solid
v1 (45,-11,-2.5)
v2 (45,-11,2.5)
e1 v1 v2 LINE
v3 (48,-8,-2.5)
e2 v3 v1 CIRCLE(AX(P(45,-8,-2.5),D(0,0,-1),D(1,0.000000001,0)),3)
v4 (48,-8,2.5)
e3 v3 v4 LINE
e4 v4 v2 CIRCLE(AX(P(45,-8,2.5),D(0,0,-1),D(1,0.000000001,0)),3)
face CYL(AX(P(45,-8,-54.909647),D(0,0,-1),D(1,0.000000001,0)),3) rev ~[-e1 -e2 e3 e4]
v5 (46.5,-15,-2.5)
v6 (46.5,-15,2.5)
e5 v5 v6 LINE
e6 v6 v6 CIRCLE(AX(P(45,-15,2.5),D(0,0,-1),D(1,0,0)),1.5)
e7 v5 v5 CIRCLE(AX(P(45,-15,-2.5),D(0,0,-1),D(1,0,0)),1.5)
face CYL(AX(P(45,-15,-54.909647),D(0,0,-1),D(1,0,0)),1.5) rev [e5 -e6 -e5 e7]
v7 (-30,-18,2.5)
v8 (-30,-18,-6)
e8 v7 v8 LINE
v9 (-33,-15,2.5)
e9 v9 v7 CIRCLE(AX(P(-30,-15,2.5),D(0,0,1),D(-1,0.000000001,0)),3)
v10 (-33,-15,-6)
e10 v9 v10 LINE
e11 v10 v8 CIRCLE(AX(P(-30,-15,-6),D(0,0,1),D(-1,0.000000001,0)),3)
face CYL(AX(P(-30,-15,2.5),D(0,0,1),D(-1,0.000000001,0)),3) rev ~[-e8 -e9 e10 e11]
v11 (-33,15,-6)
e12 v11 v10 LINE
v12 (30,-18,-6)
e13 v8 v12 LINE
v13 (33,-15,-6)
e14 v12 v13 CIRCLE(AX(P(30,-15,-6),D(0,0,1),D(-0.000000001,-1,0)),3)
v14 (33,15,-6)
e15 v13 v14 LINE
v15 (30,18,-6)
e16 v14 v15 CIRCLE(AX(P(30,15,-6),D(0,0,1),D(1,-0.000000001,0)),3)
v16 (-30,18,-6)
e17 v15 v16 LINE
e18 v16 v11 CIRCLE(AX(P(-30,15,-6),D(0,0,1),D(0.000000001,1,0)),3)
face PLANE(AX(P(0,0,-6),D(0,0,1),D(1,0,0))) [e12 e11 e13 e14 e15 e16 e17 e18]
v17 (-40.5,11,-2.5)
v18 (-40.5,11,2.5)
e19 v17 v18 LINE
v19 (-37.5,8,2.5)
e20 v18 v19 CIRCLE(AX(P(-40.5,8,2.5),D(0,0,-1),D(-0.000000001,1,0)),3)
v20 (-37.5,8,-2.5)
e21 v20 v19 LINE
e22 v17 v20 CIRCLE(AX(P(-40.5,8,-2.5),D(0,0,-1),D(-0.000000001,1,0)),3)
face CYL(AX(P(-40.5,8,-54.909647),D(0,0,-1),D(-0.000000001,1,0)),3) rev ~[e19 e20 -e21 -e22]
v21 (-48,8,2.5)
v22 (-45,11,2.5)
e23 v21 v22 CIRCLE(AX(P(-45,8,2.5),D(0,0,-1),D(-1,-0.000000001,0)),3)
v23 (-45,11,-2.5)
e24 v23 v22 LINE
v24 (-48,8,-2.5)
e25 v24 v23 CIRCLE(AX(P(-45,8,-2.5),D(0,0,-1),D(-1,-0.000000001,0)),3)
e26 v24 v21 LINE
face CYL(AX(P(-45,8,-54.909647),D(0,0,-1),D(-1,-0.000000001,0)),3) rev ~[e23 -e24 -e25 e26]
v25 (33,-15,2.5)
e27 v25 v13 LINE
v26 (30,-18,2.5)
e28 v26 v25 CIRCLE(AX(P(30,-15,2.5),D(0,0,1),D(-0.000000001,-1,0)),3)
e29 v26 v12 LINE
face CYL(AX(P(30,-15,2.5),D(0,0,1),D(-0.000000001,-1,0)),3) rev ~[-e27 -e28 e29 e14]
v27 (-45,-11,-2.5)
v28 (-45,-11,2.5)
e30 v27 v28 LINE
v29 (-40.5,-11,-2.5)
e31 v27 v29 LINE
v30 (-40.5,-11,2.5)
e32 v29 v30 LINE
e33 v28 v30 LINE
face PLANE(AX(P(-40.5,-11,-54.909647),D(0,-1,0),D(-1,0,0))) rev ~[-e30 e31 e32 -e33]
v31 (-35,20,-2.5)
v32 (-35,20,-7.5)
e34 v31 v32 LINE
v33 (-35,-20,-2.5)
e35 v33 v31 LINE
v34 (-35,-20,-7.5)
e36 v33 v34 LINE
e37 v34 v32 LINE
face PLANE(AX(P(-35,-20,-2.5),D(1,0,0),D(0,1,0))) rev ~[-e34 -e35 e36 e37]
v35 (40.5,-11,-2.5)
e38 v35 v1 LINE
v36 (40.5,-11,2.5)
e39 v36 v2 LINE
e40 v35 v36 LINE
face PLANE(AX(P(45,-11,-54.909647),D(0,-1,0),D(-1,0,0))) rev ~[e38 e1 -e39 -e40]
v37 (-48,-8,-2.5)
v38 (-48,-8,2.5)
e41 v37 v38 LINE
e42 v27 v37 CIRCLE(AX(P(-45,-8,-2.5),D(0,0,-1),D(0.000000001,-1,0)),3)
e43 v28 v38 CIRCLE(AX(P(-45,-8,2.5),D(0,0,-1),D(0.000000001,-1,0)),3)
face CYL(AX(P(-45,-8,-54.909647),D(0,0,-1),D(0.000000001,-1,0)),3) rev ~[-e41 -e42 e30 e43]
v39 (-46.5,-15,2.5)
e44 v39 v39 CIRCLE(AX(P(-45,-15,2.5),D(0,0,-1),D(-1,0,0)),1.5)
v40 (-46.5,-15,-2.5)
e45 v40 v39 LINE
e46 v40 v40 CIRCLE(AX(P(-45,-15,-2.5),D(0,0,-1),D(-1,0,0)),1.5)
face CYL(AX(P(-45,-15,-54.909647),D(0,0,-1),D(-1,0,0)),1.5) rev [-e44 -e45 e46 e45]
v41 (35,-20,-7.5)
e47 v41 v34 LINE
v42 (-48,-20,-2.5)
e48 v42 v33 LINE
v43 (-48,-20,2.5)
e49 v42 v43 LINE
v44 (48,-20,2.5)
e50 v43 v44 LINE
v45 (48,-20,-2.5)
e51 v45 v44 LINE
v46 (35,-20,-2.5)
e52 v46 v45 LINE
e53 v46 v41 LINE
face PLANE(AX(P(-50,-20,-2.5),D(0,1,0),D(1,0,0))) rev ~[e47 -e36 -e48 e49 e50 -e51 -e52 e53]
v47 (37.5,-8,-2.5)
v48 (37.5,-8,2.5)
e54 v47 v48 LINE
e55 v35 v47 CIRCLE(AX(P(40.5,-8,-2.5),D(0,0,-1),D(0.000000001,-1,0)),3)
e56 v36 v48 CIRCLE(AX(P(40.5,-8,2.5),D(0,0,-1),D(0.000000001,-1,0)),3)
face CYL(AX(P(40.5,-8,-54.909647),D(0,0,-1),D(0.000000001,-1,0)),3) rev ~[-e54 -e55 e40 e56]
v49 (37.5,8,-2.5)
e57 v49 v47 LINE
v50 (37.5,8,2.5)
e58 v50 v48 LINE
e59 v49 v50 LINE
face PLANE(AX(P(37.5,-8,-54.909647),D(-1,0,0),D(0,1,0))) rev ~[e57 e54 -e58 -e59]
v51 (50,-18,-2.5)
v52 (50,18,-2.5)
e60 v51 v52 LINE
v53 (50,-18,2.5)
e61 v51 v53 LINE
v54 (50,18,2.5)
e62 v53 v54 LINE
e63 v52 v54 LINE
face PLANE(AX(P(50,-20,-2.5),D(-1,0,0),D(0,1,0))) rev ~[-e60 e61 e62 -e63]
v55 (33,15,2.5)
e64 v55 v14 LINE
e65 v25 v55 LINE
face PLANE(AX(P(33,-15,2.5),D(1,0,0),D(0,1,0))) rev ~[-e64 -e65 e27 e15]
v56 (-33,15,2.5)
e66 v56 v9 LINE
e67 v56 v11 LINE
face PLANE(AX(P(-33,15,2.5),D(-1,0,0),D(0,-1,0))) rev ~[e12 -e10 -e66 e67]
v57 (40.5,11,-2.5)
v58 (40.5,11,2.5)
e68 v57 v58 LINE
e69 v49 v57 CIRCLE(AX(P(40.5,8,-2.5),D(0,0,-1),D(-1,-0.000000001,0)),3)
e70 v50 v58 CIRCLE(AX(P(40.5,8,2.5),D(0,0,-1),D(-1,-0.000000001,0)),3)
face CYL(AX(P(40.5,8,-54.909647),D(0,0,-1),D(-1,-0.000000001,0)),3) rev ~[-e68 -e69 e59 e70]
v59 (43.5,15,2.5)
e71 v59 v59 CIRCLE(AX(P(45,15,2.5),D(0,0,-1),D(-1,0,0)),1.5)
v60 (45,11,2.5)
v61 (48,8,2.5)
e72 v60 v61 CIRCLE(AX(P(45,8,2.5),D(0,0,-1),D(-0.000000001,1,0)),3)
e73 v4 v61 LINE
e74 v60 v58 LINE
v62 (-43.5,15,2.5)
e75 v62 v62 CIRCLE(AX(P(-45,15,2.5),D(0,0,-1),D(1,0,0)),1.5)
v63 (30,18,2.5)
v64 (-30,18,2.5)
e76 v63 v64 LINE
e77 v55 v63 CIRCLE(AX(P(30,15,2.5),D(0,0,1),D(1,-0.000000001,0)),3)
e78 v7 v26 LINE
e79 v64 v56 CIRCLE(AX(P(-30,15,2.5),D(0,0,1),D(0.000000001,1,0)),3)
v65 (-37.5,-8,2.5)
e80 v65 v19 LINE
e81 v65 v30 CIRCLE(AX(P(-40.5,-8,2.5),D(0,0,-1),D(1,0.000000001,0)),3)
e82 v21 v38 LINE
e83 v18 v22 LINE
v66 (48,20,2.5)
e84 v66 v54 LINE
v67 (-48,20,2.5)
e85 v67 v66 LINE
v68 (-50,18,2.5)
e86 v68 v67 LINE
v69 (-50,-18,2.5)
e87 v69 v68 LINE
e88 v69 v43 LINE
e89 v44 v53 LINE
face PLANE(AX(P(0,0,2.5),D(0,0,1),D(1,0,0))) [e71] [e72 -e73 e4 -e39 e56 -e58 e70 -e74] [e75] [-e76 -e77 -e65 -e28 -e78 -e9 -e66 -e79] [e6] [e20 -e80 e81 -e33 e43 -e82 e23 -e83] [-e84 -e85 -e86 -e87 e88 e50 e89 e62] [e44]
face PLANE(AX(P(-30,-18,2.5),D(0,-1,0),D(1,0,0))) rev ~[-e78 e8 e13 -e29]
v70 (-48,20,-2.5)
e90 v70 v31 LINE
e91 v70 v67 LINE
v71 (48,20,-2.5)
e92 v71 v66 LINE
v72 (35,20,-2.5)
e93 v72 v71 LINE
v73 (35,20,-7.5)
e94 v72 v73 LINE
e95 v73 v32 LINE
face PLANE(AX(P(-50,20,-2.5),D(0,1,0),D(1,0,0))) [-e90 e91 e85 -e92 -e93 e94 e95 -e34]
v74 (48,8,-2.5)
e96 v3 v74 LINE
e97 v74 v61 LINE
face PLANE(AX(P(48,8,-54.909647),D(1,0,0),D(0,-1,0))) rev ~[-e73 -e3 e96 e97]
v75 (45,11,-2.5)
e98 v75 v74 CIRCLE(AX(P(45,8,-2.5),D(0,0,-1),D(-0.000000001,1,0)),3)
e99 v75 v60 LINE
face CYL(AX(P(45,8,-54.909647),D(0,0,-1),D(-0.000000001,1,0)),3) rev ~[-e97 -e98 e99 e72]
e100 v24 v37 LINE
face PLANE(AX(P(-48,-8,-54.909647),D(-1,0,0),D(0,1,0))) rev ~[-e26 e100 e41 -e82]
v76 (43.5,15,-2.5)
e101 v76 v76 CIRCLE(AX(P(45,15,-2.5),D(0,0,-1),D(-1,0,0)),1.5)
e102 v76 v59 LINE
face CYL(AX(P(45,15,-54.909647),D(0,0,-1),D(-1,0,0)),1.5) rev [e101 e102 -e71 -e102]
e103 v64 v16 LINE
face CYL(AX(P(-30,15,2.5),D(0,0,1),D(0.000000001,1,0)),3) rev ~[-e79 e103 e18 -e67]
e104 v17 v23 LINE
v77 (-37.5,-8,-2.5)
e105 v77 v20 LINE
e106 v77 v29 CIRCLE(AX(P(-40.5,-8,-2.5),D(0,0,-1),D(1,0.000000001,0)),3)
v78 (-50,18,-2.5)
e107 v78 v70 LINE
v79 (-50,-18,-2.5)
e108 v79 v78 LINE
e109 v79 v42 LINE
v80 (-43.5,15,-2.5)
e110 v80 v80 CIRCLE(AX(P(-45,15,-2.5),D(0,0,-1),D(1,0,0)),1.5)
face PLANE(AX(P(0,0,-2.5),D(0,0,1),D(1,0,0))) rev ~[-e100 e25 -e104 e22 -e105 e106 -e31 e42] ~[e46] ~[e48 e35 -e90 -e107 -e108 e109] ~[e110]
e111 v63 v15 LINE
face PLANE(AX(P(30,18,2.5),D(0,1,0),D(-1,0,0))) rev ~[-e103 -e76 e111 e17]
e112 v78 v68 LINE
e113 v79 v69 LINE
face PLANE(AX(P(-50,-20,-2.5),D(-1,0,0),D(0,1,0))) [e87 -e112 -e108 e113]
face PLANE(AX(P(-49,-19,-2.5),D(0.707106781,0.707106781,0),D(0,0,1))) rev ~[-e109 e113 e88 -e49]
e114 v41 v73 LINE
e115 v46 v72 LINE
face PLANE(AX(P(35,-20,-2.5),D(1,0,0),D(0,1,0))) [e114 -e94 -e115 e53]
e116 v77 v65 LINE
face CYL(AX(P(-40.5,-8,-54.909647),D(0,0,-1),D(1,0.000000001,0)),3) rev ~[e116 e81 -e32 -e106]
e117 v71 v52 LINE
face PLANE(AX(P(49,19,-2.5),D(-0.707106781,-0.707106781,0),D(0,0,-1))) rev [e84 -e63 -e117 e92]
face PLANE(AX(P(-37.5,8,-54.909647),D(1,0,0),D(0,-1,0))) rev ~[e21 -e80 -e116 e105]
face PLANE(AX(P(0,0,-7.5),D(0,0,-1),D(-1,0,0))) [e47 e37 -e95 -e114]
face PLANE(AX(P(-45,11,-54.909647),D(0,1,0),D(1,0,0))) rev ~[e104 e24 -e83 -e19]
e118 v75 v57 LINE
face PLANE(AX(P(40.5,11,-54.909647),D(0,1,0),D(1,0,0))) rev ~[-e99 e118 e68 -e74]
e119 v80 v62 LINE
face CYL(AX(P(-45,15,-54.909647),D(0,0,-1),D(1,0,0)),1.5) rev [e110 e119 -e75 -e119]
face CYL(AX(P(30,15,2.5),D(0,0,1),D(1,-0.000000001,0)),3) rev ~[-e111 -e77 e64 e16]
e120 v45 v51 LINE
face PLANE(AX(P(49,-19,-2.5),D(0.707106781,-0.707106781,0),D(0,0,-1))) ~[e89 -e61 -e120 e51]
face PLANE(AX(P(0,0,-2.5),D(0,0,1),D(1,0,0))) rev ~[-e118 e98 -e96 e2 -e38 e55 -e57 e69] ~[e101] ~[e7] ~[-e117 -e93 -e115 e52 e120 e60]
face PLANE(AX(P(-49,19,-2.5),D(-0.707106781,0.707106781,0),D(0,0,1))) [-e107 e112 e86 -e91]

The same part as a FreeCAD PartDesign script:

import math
import FreeCAD as App
import Part
import Sketcher

V = App.Vector
Q = App.Units.Quantity


def edges_at(feature, points):
    """Names of the edges that pass closest to the given points."""
    edges = feature.Shape.Edges
    near = lambda p: min(range(len(edges)), key=lambda i: edges[i].distToShape(Part.Vertex(*p))[0])
    return sorted({f"Edge{near(p) + 1}" for p in points})

doc = App.newDocument("Part")
body = doc.addObject("PartDesign::Body", "Body")

# Sketch on XY plane
sketch1 = body.newObject("Sketcher::SketchObject", "Sketch")
sketch1.AttachmentSupport = (doc.getObject("XY_Plane"), [""])
sketch1.MapMode = "FlatFace"
sketch1.addGeometry([
    Part.LineSegment(V(-50, 20, 0), V(-50, -20, 0)),
    Part.LineSegment(V(-50, -20, 0), V(50, -20, 0)),
    Part.LineSegment(V(50, -20, 0), V(50, 20, 0)),
    Part.LineSegment(V(50, 20, 0), V(-50, 20, 0)),
], False)
sketch1.addConstraint([
    Sketcher.Constraint("Coincident", 0, 2, 1, 1),
    Sketcher.Constraint("Coincident", 1, 2, 2, 1),
    Sketcher.Constraint("Coincident", 2, 2, 3, 1),
    Sketcher.Constraint("Coincident", 3, 2, 0, 1),
    Sketcher.Constraint("Vertical", 0),
    Sketcher.Constraint("Horizontal", 1),
    Sketcher.Constraint("Vertical", 2),
    Sketcher.Constraint("Horizontal", 3),
    Sketcher.Constraint("Symmetric", 0, 2, 2, 2, -1, 1),
    Sketcher.Constraint("DistanceX", 1, 1, 1, 2, Q("100 mm")),
    Sketcher.Constraint("DistanceY", 0, 2, 0, 1, Q("40 mm")),
])
pad1 = body.newObject("PartDesign::Pad", "Pad")
pad1.Profile = sketch1
pad1.Type = "TwoLengths"
pad1.Length = 2.5
pad1.Length2 = 2.5

# Sketch on XY plane
sketch2 = body.newObject("Sketcher::SketchObject", "Sketch001")
sketch2.AttachmentSupport = (doc.getObject("XY_Plane"), [""])
sketch2.MapMode = "FlatFace"
sketch2.addGeometry([
    Part.Circle(V(-45, 15, 0), V(0, 0, 1), 1.5),
    Part.Circle(V(-45, -15, 0), V(0, 0, 1), 1.5),
    Part.Circle(V(45, -15, 0), V(0, 0, 1), 1.5),
    Part.Circle(V(45, 15, 0), V(0, 0, 1), 1.5),
], False)
sketch2.addConstraint([
    Sketcher.Constraint("Equal", 0, 1),
    Sketcher.Constraint("Equal", 1, 2),
    Sketcher.Constraint("Equal", 2, 3),
    Sketcher.Constraint("Symmetric", 0, 3, 2, 3, -1, 1),
    Sketcher.Constraint("Symmetric", 1, 3, 3, 3, -1, 1),
    Sketcher.Constraint("Symmetric", 1, 3, 2, 3, -2),
    Sketcher.Constraint("Diameter", 0, Q("3 mm")),
    Sketcher.Constraint("DistanceX", 0, 3, -1, 1, Q("45 mm")),
    Sketcher.Constraint("DistanceY", -1, 1, 0, 3, Q("15 mm")),
])
pocket1 = body.newObject("PartDesign::Pocket", "Pocket")
pocket1.Profile = sketch2
pocket1.Type = "ThroughAll"
pocket1.Midplane = True

# Sketch on XY plane
sketch3 = body.newObject("Sketcher::SketchObject", "Sketch002")
sketch3.AttachmentSupport = (doc.getObject("XY_Plane"), [""])
sketch3.MapMode = "FlatFace"
sketch3.addGeometry([
    Part.LineSegment(V(-48, 8, 0), V(-48, -8, 0)),  # 0
    Part.ArcOfCircle(Part.Circle(V(-45, -8, 0), V(0, 0, 1), 3), math.radians(180), math.radians(270)),  # 1
    Part.LineSegment(V(-45, -11, 0), V(-40.5, -11, 0)),  # 2
    Part.ArcOfCircle(Part.Circle(V(-40.5, -8, 0), V(0, 0, 1), 3), math.radians(-90), math.radians(0)),  # 3
    Part.LineSegment(V(-37.5, -8, 0), V(-37.5, 8, 0)),  # 4
    Part.ArcOfCircle(Part.Circle(V(-40.5, 8, 0), V(0, 0, 1), 3), math.radians(0), math.radians(90)),  # 5
    Part.LineSegment(V(-40.5, 11, 0), V(-45, 11, 0)),  # 6
    Part.ArcOfCircle(Part.Circle(V(-45, 8, 0), V(0, 0, 1), 3), math.radians(90), math.radians(180)),  # 7
    Part.LineSegment(V(40.5, -11, 0), V(45, -11, 0)),  # 8
    Part.ArcOfCircle(Part.Circle(V(45, -8, 0), V(0, 0, 1), 3), math.radians(-90), math.radians(0)),  # 9
    Part.LineSegment(V(48, -8, 0), V(48, 8, 0)),  # 10
    Part.ArcOfCircle(Part.Circle(V(45, 8, 0), V(0, 0, 1), 3), math.radians(0), math.radians(90)),  # 11
    Part.LineSegment(V(45, 11, 0), V(40.5, 11, 0)),  # 12
    Part.ArcOfCircle(Part.Circle(V(40.5, 8, 0), V(0, 0, 1), 3), math.radians(90), math.radians(180)),  # 13
    Part.LineSegment(V(37.5, 8, 0), V(37.5, -8, 0)),  # 14
    Part.ArcOfCircle(Part.Circle(V(40.5, -8, 0), V(0, 0, 1), 3), math.radians(180), math.radians(270)),  # 15
], False)
sketch3.addConstraint([
    Sketcher.Constraint("Tangent", 0, 2, 1, 1),
    Sketcher.Constraint("Tangent", 1, 2, 2, 1),
    Sketcher.Constraint("Tangent", 2, 2, 3, 1),
    Sketcher.Constraint("Tangent", 3, 2, 4, 1),
    Sketcher.Constraint("Tangent", 4, 2, 5, 1),
    Sketcher.Constraint("Tangent", 5, 2, 6, 1),
    Sketcher.Constraint("Tangent", 6, 2, 7, 1),
    Sketcher.Constraint("Tangent", 7, 2, 0, 1),
    Sketcher.Constraint("Tangent", 8, 2, 9, 1),
    Sketcher.Constraint("Tangent", 9, 2, 10, 1),
    Sketcher.Constraint("Tangent", 10, 2, 11, 1),
    Sketcher.Constraint("Tangent", 11, 2, 12, 1),
    Sketcher.Constraint("Tangent", 12, 2, 13, 1),
    Sketcher.Constraint("Tangent", 13, 2, 14, 1),
    Sketcher.Constraint("Tangent", 14, 2, 15, 1),
    Sketcher.Constraint("Tangent", 15, 2, 8, 1),
    Sketcher.Constraint("Vertical", 0),
    Sketcher.Constraint("Horizontal", 2),
    Sketcher.Constraint("Vertical", 4),
    Sketcher.Constraint("Horizontal", 6),
    Sketcher.Constraint("Horizontal", 8),
    Sketcher.Constraint("Vertical", 10),
    Sketcher.Constraint("Horizontal", 12),
    Sketcher.Constraint("Vertical", 14),
    Sketcher.Constraint("Equal", 1, 3),
    Sketcher.Constraint("Equal", 3, 5),
    Sketcher.Constraint("Equal", 5, 7),
    Sketcher.Constraint("Equal", 7, 9),
    Sketcher.Constraint("Equal", 9, 11),
    Sketcher.Constraint("Equal", 11, 13),
    Sketcher.Constraint("Equal", 13, 15),
    Sketcher.Constraint("Symmetric", 7, 3, 9, 3, -1, 1),
    Sketcher.Constraint("Symmetric", 3, 3, 13, 3, -1, 1),
    Sketcher.Constraint("Horizontal", 3, 3, 9, 3),
    Sketcher.Constraint("Radius", 1, Q("3 mm")),
    Sketcher.Constraint("DistanceY", 0, 2, 0, 1, Q("16 mm")),
    Sketcher.Constraint("DistanceX", 2, 1, 2, 2, Q("4.5 mm")),
    Sketcher.Constraint("DistanceX", 1, 3, -1, 1, Q("45 mm")),
])
pocket2 = body.newObject("PartDesign::Pocket", "Pocket001")
pocket2.Profile = sketch3
pocket2.Type = "ThroughAll"
pocket2.Midplane = True

# Sketch on XY plane
sketch4 = body.newObject("Sketcher::SketchObject", "Sketch003")
sketch4.AttachmentSupport = (doc.getObject("XY_Plane"), [""])
sketch4.MapMode = "FlatFace"
sketch4.AttachmentOffset = App.Placement(V(0, 0, -2.5), App.Rotation())
sketch4.addGeometry([
    Part.LineSegment(V(35, 20, 0), V(35, -20, 0)),
    Part.LineSegment(V(35, -20, 0), V(-35, -20, 0)),
    Part.LineSegment(V(-35, -20, 0), V(-35, 20, 0)),
    Part.LineSegment(V(-35, 20, 0), V(35, 20, 0)),
], False)
sketch4.addConstraint([
    Sketcher.Constraint("Coincident", 0, 2, 1, 1),
    Sketcher.Constraint("Coincident", 1, 2, 2, 1),
    Sketcher.Constraint("Coincident", 2, 2, 3, 1),
    Sketcher.Constraint("Coincident", 3, 2, 0, 1),
    Sketcher.Constraint("Vertical", 0),
    Sketcher.Constraint("Horizontal", 1),
    Sketcher.Constraint("Vertical", 2),
    Sketcher.Constraint("Horizontal", 3),
    Sketcher.Constraint("Symmetric", 0, 2, 2, 2, -1, 1),
    Sketcher.Constraint("DistanceX", 1, 2, 1, 1, Q("70 mm")),
    Sketcher.Constraint("DistanceY", 0, 2, 0, 1, Q("40 mm")),
])
pad2 = body.newObject("PartDesign::Pad", "Pad001")
pad2.Profile = sketch4
pad2.Length = 5
pad2.Reversed = True

# Sketch on XY plane
sketch5 = body.newObject("Sketcher::SketchObject", "Sketch004")
sketch5.AttachmentSupport = (doc.getObject("XY_Plane"), [""])
sketch5.MapMode = "FlatFace"
sketch5.AttachmentOffset = App.Placement(V(0, 0, 2.5), App.Rotation())
sketch5.addGeometry([
    Part.LineSegment(V(33, -15, 0), V(33, 15, 0)),  # 0
    Part.ArcOfCircle(Part.Circle(V(30, 15, 0), V(0, 0, 1), 3), math.radians(0), math.radians(90)),  # 1
    Part.LineSegment(V(30, 18, 0), V(-30, 18, 0)),  # 2
    Part.ArcOfCircle(Part.Circle(V(-30, 15, 0), V(0, 0, 1), 3), math.radians(90), math.radians(180)),  # 3
    Part.LineSegment(V(-33, 15, 0), V(-33, -15, 0)),  # 4
    Part.ArcOfCircle(Part.Circle(V(-30, -15, 0), V(0, 0, 1), 3), math.radians(180), math.radians(270)),  # 5
    Part.LineSegment(V(-30, -18, 0), V(30, -18, 0)),  # 6
    Part.ArcOfCircle(Part.Circle(V(30, -15, 0), V(0, 0, 1), 3), math.radians(-90), math.radians(0)),  # 7
], False)
sketch5.addConstraint([
    Sketcher.Constraint("Tangent", 0, 2, 1, 1),
    Sketcher.Constraint("Tangent", 1, 2, 2, 1),
    Sketcher.Constraint("Tangent", 2, 2, 3, 1),
    Sketcher.Constraint("Tangent", 3, 2, 4, 1),
    Sketcher.Constraint("Tangent", 4, 2, 5, 1),
    Sketcher.Constraint("Tangent", 5, 2, 6, 1),
    Sketcher.Constraint("Tangent", 6, 2, 7, 1),
    Sketcher.Constraint("Tangent", 7, 2, 0, 1),
    Sketcher.Constraint("Vertical", 0),
    Sketcher.Constraint("Horizontal", 2),
    Sketcher.Constraint("Vertical", 4),
    Sketcher.Constraint("Horizontal", 6),
    Sketcher.Constraint("Equal", 1, 3),
    Sketcher.Constraint("Equal", 3, 5),
    Sketcher.Constraint("Equal", 5, 7),
    Sketcher.Constraint("Symmetric", 1, 3, 5, 3, -1, 1),
    Sketcher.Constraint("Radius", 1, Q("3 mm")),
    Sketcher.Constraint("DistanceX", 2, 2, 2, 1, Q("60 mm")),
    Sketcher.Constraint("DistanceY", 0, 1, 0, 2, Q("30 mm")),
])
pocket3 = body.newObject("PartDesign::Pocket", "Pocket002")
pocket3.Profile = sketch5
pocket3.Length = 8.5
doc.recompute()

chamfer = body.newObject("PartDesign::Chamfer", "Chamfer")
chamfer.Base = (pocket3, edges_at(pocket3, [
    (50, 20, 0),
    (50, -20, 0),
    (-50, -20, 0),
    (-50, 20, 0),
]))
chamfer.Size = 2

doc.recompute()
